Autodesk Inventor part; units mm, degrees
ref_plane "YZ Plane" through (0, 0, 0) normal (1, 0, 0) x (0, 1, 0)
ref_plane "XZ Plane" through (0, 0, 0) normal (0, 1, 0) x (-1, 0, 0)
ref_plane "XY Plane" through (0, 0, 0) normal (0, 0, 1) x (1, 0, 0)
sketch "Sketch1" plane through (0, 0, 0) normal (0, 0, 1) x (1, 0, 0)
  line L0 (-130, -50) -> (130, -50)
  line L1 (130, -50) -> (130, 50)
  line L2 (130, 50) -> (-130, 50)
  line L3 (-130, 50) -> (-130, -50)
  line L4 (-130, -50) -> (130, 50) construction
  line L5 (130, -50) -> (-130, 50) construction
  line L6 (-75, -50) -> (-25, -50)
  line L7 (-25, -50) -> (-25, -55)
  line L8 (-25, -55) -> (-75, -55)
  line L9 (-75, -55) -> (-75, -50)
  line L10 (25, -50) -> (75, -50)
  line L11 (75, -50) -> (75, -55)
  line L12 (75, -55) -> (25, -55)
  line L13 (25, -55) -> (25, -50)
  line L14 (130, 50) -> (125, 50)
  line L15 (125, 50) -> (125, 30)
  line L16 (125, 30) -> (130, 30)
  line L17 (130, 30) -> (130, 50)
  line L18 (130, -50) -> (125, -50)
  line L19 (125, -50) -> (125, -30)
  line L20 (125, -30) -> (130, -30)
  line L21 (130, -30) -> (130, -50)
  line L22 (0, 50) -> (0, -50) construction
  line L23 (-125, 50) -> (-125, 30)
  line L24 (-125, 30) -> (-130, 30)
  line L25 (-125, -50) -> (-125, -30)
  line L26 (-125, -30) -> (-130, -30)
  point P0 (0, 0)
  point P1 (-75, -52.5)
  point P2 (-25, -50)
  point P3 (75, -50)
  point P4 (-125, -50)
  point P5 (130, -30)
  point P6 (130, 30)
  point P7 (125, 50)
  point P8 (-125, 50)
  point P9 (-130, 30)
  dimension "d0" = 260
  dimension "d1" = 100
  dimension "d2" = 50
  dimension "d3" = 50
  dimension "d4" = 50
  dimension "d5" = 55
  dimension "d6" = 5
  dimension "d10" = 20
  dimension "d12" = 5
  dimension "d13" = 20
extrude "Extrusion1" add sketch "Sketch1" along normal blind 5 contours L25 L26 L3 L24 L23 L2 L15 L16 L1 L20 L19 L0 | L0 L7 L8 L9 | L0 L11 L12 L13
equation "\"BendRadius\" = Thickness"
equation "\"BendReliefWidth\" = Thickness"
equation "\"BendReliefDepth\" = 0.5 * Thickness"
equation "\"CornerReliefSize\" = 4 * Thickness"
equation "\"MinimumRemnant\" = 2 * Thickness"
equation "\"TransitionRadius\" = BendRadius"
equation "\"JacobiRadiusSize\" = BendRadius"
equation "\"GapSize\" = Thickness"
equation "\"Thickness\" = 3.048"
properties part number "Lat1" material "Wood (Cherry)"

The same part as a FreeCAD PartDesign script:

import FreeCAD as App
import Part
import Sketcher

V = App.Vector
Q = App.Units.Quantity

doc = App.newDocument("Part")
body = doc.addObject("PartDesign::Body", "Body")

sketch1 = doc.addObject("Sketcher::SketchObject", "Sketch")
body.addObject(sketch1)
sketch1.AttachmentSupport = (doc.XY_Plane, [""])
sketch1.MapMode = "FlatFace"
sketch1.addGeometry([
    Part.LineSegment(V(-125, -30, 0), V(-125, -50, 0)),
    Part.LineSegment(V(-125, -50, 0), V(-75, -50, 0)),
    Part.LineSegment(V(-75, -50, 0), V(-75, -55, 0)),
    Part.LineSegment(V(-75, -55, 0), V(-25, -55, 0)),
    Part.LineSegment(V(-25, -55, 0), V(-25, -50, 0)),
    Part.LineSegment(V(-25, -50, 0), V(25, -50, 0)),
    Part.LineSegment(V(25, -50, 0), V(25, -55, 0)),
    Part.LineSegment(V(25, -55, 0), V(75, -55, 0)),
    Part.LineSegment(V(75, -55, 0), V(75, -50, 0)),
    Part.LineSegment(V(75, -50, 0), V(125, -50, 0)),
    Part.LineSegment(V(125, -50, 0), V(125, -30, 0)),
    Part.LineSegment(V(125, -30, 0), V(130, -30, 0)),
    Part.LineSegment(V(130, -30, 0), V(130, 30, 0)),
    Part.LineSegment(V(130, 30, 0), V(125, 30, 0)),
    Part.LineSegment(V(125, 30, 0), V(125, 50, 0)),
    Part.LineSegment(V(125, 50, 0), V(-125, 50, 0)),
    Part.LineSegment(V(-125, 50, 0), V(-125, 30, 0)),
    Part.LineSegment(V(-125, 30, 0), V(-130, 30, 0)),
    Part.LineSegment(V(-130, 30, 0), V(-130, -30, 0)),
    Part.LineSegment(V(-130, -30, 0), V(-125, -30, 0)),
], False)
sketch1.addConstraint([
    Sketcher.Constraint("Coincident", 0, 2, 1, 1),
    Sketcher.Constraint("Coincident", 1, 2, 2, 1),
    Sketcher.Constraint("Coincident", 2, 2, 3, 1),
    Sketcher.Constraint("Coincident", 3, 2, 4, 1),
    Sketcher.Constraint("Coincident", 4, 2, 5, 1),
    Sketcher.Constraint("Coincident", 5, 2, 6, 1),
    Sketcher.Constraint("Coincident", 6, 2, 7, 1),
    Sketcher.Constraint("Coincident", 7, 2, 8, 1),
    Sketcher.Constraint("Coincident", 8, 2, 9, 1),
    Sketcher.Constraint("Coincident", 9, 2, 10, 1),
    Sketcher.Constraint("Coincident", 10, 2, 11, 1),
    Sketcher.Constraint("Coincident", 11, 2, 12, 1),
    Sketcher.Constraint("Coincident", 12, 2, 13, 1),
    Sketcher.Constraint("Coincident", 13, 2, 14, 1),
    Sketcher.Constraint("Coincident", 14, 2, 15, 1),
    Sketcher.Constraint("Coincident", 15, 2, 16, 1),
    Sketcher.Constraint("Coincident", 16, 2, 17, 1),
    Sketcher.Constraint("Coincident", 17, 2, 18, 1),
    Sketcher.Constraint("Coincident", 18, 2, 19, 1),
    Sketcher.Constraint("Coincident", 19, 2, 0, 1),
    Sketcher.Constraint("Vertical", 0),
    Sketcher.Constraint("Horizontal", 1),
    Sketcher.Constraint("Vertical", 2),
    Sketcher.Constraint("Horizontal", 3),
    Sketcher.Constraint("Vertical", 4),
    Sketcher.Constraint("Horizontal", 5),
    Sketcher.Constraint("Vertical", 6),
    Sketcher.Constraint("Horizontal", 7),
    Sketcher.Constraint("Vertical", 8),
    Sketcher.Constraint("Horizontal", 9),
    Sketcher.Constraint("Vertical", 10),
    Sketcher.Constraint("Horizontal", 11),
    Sketcher.Constraint("Vertical", 12),
    Sketcher.Constraint("Horizontal", 13),
    Sketcher.Constraint("Vertical", 14),
    Sketcher.Constraint("Horizontal", 15),
    Sketcher.Constraint("Vertical", 16),
    Sketcher.Constraint("Horizontal", 17),
    Sketcher.Constraint("Vertical", 18),
    Sketcher.Constraint("Horizontal", 19),
    Sketcher.Constraint("Symmetric", 0, 2, 14, 2, -1, 1),
    Sketcher.Constraint("Symmetric", 9, 2, 15, 2, -1, 1),
    Sketcher.Constraint("Symmetric", 11, 2, 17, 2, -1, 1),
    Sketcher.Constraint("Symmetric", 3, 2, 6, 2, -2),
    Sketcher.Constraint("Symmetric", 13, 2, 16, 2, -2),
    Sketcher.Constraint("Horizontal", 1, 2, 4, 2),
    Sketcher.Constraint("Horizontal", 11, 2, 18, 2),
    Sketcher.Constraint("Equal", 1, 3),
    Sketcher.Constraint("Equal", 3, 5),
    Sketcher.Constraint("Equal", 5, 7),
    Sketcher.Constraint("Equal", 19, 2),
    Sketcher.Constraint("DistanceX", 1, 1, 1, 2, Q("50 mm")),
    Sketcher.Constraint("DistanceX", 11, 1, 11, 2, Q("5 mm")),
    Sketcher.Constraint("DistanceY", 0, 2, 0, 1, Q("20 mm")),
    Sketcher.Constraint("DistanceY", 0, 2, -1, 1, Q("50 mm")),
])
pad1 = doc.addObject("PartDesign::Pad", "Pad")
body.addObject(pad1)
pad1.Profile = sketch1
pad1.Length = 5

doc.recompute()
